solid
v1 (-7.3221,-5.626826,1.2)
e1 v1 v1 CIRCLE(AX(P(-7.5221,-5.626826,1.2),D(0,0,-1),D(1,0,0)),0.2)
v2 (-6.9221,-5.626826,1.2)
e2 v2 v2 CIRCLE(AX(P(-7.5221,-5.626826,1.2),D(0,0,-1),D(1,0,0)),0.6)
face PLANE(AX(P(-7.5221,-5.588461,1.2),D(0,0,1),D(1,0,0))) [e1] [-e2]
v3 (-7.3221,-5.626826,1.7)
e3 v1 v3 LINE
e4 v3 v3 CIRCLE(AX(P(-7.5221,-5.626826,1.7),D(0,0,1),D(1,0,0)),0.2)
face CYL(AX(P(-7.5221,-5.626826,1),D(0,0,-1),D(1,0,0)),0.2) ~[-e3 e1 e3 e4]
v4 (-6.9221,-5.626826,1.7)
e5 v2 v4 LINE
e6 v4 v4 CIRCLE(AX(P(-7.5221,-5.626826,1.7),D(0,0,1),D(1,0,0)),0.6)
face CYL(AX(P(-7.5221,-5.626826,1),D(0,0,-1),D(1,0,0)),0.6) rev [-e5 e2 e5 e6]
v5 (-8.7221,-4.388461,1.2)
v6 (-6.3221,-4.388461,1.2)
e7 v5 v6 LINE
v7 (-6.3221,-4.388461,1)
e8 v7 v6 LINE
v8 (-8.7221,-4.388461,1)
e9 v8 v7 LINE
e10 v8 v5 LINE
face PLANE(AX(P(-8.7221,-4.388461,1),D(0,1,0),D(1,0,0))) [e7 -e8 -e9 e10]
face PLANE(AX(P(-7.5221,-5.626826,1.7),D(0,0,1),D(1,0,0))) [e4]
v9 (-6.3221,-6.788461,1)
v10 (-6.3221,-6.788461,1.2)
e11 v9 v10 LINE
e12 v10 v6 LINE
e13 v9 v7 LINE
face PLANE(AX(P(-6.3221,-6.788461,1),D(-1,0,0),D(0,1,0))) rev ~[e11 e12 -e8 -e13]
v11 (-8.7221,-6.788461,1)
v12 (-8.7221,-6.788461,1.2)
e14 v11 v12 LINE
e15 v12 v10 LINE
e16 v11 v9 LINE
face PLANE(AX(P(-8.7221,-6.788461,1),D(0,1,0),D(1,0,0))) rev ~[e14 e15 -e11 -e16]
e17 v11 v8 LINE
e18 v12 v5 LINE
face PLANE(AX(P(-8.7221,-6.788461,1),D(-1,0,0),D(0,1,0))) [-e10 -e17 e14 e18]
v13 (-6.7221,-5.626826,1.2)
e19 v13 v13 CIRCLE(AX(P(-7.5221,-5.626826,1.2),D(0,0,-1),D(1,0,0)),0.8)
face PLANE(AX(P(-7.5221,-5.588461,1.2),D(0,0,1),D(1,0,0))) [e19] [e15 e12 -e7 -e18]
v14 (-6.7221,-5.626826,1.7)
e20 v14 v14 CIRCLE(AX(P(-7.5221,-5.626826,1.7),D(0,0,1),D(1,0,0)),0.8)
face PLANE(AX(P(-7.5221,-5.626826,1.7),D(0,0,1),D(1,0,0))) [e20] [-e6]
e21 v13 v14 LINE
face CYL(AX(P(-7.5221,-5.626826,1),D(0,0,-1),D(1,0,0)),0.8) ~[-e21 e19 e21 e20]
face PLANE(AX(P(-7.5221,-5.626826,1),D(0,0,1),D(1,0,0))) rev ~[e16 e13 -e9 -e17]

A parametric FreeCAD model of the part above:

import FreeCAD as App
import Part
import Sketcher

V = App.Vector
Q = App.Units.Quantity

doc = App.newDocument("Part")
body = doc.addObject("PartDesign::Body", "Body")

sketch1 = body.newObject("Sketcher::SketchObject", "Sketch")
sketch1.AttachmentSupport = (doc.getObject("XY_Plane"), [""])
sketch1.MapMode = "FlatFace"
sketch1.addGeometry([
    Part.Circle(V(-19.6, -6.4, 0), V(0, 0, 1), 0.8),
    Part.Circle(V(-19.6, -6.4, 0), V(0, 0, 1), 0.6),
], False)
sketch1.addConstraint([
    Sketcher.Constraint("Coincident", 1, 3, 0, 3),
    Sketcher.Constraint("Diameter", 0, Q("1.6 mm")),
    Sketcher.Constraint("Diameter", 1, Q("1.2 mm")),
    Sketcher.Constraint("DistanceX", 0, 3, -1, 1, Q("19.6 mm")),
    Sketcher.Constraint("DistanceY", 0, 3, -1, 1, Q("6.4 mm")),
])
pad1 = body.newObject("PartDesign::Pad", "Pad")
pad1.Profile = sketch1
pad1.Length = 0.7
body2 = doc.addObject("PartDesign::Body", "Body001")

sketch2 = body2.newObject("Sketcher::SketchObject", "Sketch001")
sketch2.AttachmentSupport = (doc.getObject("XY_Plane001"), [""])
sketch2.MapMode = "FlatFace"
sketch2.addGeometry(Part.Circle(V(-19.6, -6.4, 0), V(0, 0, 1), 0.2), False)
sketch2.addConstraint([
    Sketcher.Constraint("Diameter", 0, Q("0.4 mm")),
    Sketcher.Constraint("DistanceX", 0, 3, -1, 1, Q("19.6 mm")),
    Sketcher.Constraint("DistanceY", 0, 3, -1, 1, Q("6.4 mm")),
])
pad2 = body2.newObject("PartDesign::Pad", "Pad001")
pad2.Profile = sketch2
pad2.Length = 0.7
body3 = doc.addObject("PartDesign::Body", "Body002")

sketch3 = body3.newObject("Sketcher::SketchObject", "Sketch002")
sketch3.AttachmentSupport = (doc.getObject("XY_Plane002"), [""])
sketch3.MapMode = "FlatFace"
sketch3.addGeometry([
    Part.LineSegment(V(-20.8, -5.161635, 0), V(-20.8, -7.561635, 0)),
    Part.LineSegment(V(-20.8, -7.561635, 0), V(-18.4, -7.561635, 0)),
    Part.LineSegment(V(-18.4, -7.561635, 0), V(-18.4, -5.161635, 0)),
    Part.LineSegment(V(-18.4, -5.161635, 0), V(-20.8, -5.161635, 0)),
], False)
sketch3.addConstraint([
    Sketcher.Constraint("Coincident", 0, 2, 1, 1),
    Sketcher.Constraint("Coincident", 1, 2, 2, 1),
    Sketcher.Constraint("Coincident", 2, 2, 3, 1),
    Sketcher.Constraint("Coincident", 3, 2, 0, 1),
    Sketcher.Constraint("Vertical", 0),
    Sketcher.Constraint("Horizontal", 1),
    Sketcher.Constraint("Vertical", 2),
    Sketcher.Constraint("Horizontal", 3),
    Sketcher.Constraint("Equal", 3, 0),
    Sketcher.Constraint("DistanceX", 1, 1, 1, 2, Q("2.4 mm")),
    Sketcher.Constraint("DistanceX", 0, 2, -1, 1, Q("20.8 mm")),
    Sketcher.Constraint("DistanceY", 0, 2, -1, 1, Q("7.561635 mm")),
])
pad3 = body3.newObject("PartDesign::Pad", "Pad002")
pad3.Profile = sketch3
pad3.Length = 0.2
doc.recompute()

boolean = body3.newObject("PartDesign::Boolean", "Boolean")
boolean.Type = "Fuse"
boolean.addObjects([body])
doc.recompute()

boolean2 = body3.newObject("PartDesign::Boolean", "Boolean001")
boolean2.Type = "Fuse"
boolean2.addObjects([body2])
body4 = doc.addObject("PartDesign::Body", "Body003")
doc.recompute()

body3.Placement = App.Placement(V(12.0779, 0.773174, 1), App.Rotation(V(0, 0, 1), 0))
boolean3 = body4.newObject("PartDesign::Boolean", "Boolean002")
boolean3.Type = "Fuse"
boolean3.addObjects([body3])

doc.recompute()
